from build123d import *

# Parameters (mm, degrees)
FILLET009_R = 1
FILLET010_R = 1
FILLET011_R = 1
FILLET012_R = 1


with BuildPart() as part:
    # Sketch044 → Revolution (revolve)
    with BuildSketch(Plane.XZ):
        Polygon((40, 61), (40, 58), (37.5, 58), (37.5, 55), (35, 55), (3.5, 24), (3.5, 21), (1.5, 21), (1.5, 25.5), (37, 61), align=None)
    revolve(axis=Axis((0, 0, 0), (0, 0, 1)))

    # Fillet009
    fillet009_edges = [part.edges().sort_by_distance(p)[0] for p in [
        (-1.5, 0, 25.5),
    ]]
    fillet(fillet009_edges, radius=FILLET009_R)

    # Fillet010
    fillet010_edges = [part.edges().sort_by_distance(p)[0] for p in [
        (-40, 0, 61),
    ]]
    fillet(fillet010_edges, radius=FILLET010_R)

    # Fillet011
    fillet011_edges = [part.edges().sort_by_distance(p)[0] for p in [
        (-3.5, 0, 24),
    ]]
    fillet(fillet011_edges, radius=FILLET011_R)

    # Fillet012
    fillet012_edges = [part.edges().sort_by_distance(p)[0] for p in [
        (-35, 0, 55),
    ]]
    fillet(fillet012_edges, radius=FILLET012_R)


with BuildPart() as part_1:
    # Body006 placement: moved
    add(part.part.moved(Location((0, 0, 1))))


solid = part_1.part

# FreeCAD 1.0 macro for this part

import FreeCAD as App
import Part
import Sketcher
from FreeCAD import Vector
Q = App.Units.Quantity


def edges_at(feature, points):
    """Names of the edges that pass closest to the given points."""
    edges = feature.Shape.Edges
    near = lambda p: min(range(len(edges)), key=lambda i: edges[i].distToShape(Part.Vertex(*p))[0])
    return sorted({f"Edge{near(p) + 1}" for p in points})

doc = App.newDocument("Part")
body = doc.addObject("PartDesign::Body", "Body")

sketch1 = body.newObject("Sketcher::SketchObject", "Sketch")
sketch1.AttachmentSupport = (doc.getObject("XZ_Plane"), [""])
sketch1.MapMode = "FlatFace"
sketch1.addGeometry([
    Part.LineSegment(Vector(40, 58, 0), Vector(40, 61, 0)),
    Part.LineSegment(Vector(40, 61, 0), Vector(37, 61, 0)),
    Part.LineSegment(Vector(37, 61, 0), Vector(1.5, 25.5, 0)),
    Part.LineSegment(Vector(1.5, 25.5, 0), Vector(1.5, 21, 0)),
    Part.LineSegment(Vector(1.5, 21, 0), Vector(3.5, 21, 0)),
    Part.LineSegment(Vector(3.5, 21, 0), Vector(3.5, 24, 0)),
    Part.LineSegment(Vector(3.5, 24, 0), Vector(35, 55, 0)),
    Part.LineSegment(Vector(35, 55, 0), Vector(37.5, 55, 0)),
    Part.LineSegment(Vector(37.5, 55, 0), Vector(37.5, 58, 0)),
    Part.LineSegment(Vector(37.5, 58, 0), Vector(40, 58, 0)),
], False)
sketch1.addConstraint([
    Sketcher.Constraint("Coincident", 0, 2, 1, 1),
    Sketcher.Constraint("Coincident", 1, 2, 2, 1),
    Sketcher.Constraint("Coincident", 2, 2, 3, 1),
    Sketcher.Constraint("Coincident", 3, 2, 4, 1),
    Sketcher.Constraint("Coincident", 4, 2, 5, 1),
    Sketcher.Constraint("Coincident", 5, 2, 6, 1),
    Sketcher.Constraint("Coincident", 6, 2, 7, 1),
    Sketcher.Constraint("Coincident", 7, 2, 8, 1),
    Sketcher.Constraint("Coincident", 8, 2, 9, 1),
    Sketcher.Constraint("Coincident", 9, 2, 0, 1),
    Sketcher.Constraint("Vertical", 0),
    Sketcher.Constraint("Horizontal", 1),
    Sketcher.Constraint("Vertical", 3),
    Sketcher.Constraint("Horizontal", 4),
    Sketcher.Constraint("Vertical", 5),
    Sketcher.Constraint("Horizontal", 7),
    Sketcher.Constraint("Vertical", 8),
    Sketcher.Constraint("Horizontal", 9),
    Sketcher.Constraint("Equal", 7, 9),
    Sketcher.Constraint("Equal", 1, 0),
    Sketcher.Constraint("Equal", 0, 5),
    Sketcher.Constraint("Equal", 5, 8),
    Sketcher.Constraint("DistanceX", 1, 2, 1, 1, 3.0),
    Sketcher.Constraint("DistanceX", 4, 1, 4, 2, 2.0),
    Sketcher.Constraint("Angle", 2, Q("-135 deg")),
    Sketcher.Constraint("DistanceX", 7, 1, 7, 2, 2.5),
    Sketcher.Constraint("DistanceY", 3, 2, 3, 1, 4.5),
    Sketcher.Constraint("DistanceX", -1, 1, 0, 2, 40.0),
    Sketcher.Constraint("DistanceY", -1, 1, 0, 2, 61.0),
    Sketcher.Constraint("DistanceY", -1, 1, 3, 2, 21.0),
])
revolution = body.newObject("PartDesign::Revolution", "Revolution")
revolution.Profile = sketch1
revolution.ReferenceAxis = (sketch1, ["V_Axis"])
revolution.Angle = 360
doc.recompute()

fillet = body.newObject("PartDesign::Fillet", "Fillet")
fillet.Base = (revolution, edges_at(revolution, [(-1.5, 0, 25.5)]))
fillet.Radius = 1
doc.recompute()

fillet2 = body.newObject("PartDesign::Fillet", "Fillet001")
fillet2.Base = (fillet, edges_at(fillet, [(-40, 0, 61)]))
fillet2.Radius = 1
doc.recompute()

fillet3 = body.newObject("PartDesign::Fillet", "Fillet002")
fillet3.Base = (fillet2, edges_at(fillet2, [(-3.5, 0, 24)]))
fillet3.Radius = 1
doc.recompute()

fillet4 = body.newObject("PartDesign::Fillet", "Fillet003")
fillet4.Base = (fillet3, edges_at(fillet3, [(-35, 0, 55)]))
fillet4.Radius = 1
body2 = doc.addObject("PartDesign::Body", "Body001")
doc.recompute()

body.Placement = App.Placement(Vector(0, 0, 1), App.Rotation(Vector(0, 0, 1), 0))
boolean = body2.newObject("PartDesign::Boolean", "Boolean")
boolean.Type = "Fuse"
boolean.addObjects([body])

doc.recompute()
